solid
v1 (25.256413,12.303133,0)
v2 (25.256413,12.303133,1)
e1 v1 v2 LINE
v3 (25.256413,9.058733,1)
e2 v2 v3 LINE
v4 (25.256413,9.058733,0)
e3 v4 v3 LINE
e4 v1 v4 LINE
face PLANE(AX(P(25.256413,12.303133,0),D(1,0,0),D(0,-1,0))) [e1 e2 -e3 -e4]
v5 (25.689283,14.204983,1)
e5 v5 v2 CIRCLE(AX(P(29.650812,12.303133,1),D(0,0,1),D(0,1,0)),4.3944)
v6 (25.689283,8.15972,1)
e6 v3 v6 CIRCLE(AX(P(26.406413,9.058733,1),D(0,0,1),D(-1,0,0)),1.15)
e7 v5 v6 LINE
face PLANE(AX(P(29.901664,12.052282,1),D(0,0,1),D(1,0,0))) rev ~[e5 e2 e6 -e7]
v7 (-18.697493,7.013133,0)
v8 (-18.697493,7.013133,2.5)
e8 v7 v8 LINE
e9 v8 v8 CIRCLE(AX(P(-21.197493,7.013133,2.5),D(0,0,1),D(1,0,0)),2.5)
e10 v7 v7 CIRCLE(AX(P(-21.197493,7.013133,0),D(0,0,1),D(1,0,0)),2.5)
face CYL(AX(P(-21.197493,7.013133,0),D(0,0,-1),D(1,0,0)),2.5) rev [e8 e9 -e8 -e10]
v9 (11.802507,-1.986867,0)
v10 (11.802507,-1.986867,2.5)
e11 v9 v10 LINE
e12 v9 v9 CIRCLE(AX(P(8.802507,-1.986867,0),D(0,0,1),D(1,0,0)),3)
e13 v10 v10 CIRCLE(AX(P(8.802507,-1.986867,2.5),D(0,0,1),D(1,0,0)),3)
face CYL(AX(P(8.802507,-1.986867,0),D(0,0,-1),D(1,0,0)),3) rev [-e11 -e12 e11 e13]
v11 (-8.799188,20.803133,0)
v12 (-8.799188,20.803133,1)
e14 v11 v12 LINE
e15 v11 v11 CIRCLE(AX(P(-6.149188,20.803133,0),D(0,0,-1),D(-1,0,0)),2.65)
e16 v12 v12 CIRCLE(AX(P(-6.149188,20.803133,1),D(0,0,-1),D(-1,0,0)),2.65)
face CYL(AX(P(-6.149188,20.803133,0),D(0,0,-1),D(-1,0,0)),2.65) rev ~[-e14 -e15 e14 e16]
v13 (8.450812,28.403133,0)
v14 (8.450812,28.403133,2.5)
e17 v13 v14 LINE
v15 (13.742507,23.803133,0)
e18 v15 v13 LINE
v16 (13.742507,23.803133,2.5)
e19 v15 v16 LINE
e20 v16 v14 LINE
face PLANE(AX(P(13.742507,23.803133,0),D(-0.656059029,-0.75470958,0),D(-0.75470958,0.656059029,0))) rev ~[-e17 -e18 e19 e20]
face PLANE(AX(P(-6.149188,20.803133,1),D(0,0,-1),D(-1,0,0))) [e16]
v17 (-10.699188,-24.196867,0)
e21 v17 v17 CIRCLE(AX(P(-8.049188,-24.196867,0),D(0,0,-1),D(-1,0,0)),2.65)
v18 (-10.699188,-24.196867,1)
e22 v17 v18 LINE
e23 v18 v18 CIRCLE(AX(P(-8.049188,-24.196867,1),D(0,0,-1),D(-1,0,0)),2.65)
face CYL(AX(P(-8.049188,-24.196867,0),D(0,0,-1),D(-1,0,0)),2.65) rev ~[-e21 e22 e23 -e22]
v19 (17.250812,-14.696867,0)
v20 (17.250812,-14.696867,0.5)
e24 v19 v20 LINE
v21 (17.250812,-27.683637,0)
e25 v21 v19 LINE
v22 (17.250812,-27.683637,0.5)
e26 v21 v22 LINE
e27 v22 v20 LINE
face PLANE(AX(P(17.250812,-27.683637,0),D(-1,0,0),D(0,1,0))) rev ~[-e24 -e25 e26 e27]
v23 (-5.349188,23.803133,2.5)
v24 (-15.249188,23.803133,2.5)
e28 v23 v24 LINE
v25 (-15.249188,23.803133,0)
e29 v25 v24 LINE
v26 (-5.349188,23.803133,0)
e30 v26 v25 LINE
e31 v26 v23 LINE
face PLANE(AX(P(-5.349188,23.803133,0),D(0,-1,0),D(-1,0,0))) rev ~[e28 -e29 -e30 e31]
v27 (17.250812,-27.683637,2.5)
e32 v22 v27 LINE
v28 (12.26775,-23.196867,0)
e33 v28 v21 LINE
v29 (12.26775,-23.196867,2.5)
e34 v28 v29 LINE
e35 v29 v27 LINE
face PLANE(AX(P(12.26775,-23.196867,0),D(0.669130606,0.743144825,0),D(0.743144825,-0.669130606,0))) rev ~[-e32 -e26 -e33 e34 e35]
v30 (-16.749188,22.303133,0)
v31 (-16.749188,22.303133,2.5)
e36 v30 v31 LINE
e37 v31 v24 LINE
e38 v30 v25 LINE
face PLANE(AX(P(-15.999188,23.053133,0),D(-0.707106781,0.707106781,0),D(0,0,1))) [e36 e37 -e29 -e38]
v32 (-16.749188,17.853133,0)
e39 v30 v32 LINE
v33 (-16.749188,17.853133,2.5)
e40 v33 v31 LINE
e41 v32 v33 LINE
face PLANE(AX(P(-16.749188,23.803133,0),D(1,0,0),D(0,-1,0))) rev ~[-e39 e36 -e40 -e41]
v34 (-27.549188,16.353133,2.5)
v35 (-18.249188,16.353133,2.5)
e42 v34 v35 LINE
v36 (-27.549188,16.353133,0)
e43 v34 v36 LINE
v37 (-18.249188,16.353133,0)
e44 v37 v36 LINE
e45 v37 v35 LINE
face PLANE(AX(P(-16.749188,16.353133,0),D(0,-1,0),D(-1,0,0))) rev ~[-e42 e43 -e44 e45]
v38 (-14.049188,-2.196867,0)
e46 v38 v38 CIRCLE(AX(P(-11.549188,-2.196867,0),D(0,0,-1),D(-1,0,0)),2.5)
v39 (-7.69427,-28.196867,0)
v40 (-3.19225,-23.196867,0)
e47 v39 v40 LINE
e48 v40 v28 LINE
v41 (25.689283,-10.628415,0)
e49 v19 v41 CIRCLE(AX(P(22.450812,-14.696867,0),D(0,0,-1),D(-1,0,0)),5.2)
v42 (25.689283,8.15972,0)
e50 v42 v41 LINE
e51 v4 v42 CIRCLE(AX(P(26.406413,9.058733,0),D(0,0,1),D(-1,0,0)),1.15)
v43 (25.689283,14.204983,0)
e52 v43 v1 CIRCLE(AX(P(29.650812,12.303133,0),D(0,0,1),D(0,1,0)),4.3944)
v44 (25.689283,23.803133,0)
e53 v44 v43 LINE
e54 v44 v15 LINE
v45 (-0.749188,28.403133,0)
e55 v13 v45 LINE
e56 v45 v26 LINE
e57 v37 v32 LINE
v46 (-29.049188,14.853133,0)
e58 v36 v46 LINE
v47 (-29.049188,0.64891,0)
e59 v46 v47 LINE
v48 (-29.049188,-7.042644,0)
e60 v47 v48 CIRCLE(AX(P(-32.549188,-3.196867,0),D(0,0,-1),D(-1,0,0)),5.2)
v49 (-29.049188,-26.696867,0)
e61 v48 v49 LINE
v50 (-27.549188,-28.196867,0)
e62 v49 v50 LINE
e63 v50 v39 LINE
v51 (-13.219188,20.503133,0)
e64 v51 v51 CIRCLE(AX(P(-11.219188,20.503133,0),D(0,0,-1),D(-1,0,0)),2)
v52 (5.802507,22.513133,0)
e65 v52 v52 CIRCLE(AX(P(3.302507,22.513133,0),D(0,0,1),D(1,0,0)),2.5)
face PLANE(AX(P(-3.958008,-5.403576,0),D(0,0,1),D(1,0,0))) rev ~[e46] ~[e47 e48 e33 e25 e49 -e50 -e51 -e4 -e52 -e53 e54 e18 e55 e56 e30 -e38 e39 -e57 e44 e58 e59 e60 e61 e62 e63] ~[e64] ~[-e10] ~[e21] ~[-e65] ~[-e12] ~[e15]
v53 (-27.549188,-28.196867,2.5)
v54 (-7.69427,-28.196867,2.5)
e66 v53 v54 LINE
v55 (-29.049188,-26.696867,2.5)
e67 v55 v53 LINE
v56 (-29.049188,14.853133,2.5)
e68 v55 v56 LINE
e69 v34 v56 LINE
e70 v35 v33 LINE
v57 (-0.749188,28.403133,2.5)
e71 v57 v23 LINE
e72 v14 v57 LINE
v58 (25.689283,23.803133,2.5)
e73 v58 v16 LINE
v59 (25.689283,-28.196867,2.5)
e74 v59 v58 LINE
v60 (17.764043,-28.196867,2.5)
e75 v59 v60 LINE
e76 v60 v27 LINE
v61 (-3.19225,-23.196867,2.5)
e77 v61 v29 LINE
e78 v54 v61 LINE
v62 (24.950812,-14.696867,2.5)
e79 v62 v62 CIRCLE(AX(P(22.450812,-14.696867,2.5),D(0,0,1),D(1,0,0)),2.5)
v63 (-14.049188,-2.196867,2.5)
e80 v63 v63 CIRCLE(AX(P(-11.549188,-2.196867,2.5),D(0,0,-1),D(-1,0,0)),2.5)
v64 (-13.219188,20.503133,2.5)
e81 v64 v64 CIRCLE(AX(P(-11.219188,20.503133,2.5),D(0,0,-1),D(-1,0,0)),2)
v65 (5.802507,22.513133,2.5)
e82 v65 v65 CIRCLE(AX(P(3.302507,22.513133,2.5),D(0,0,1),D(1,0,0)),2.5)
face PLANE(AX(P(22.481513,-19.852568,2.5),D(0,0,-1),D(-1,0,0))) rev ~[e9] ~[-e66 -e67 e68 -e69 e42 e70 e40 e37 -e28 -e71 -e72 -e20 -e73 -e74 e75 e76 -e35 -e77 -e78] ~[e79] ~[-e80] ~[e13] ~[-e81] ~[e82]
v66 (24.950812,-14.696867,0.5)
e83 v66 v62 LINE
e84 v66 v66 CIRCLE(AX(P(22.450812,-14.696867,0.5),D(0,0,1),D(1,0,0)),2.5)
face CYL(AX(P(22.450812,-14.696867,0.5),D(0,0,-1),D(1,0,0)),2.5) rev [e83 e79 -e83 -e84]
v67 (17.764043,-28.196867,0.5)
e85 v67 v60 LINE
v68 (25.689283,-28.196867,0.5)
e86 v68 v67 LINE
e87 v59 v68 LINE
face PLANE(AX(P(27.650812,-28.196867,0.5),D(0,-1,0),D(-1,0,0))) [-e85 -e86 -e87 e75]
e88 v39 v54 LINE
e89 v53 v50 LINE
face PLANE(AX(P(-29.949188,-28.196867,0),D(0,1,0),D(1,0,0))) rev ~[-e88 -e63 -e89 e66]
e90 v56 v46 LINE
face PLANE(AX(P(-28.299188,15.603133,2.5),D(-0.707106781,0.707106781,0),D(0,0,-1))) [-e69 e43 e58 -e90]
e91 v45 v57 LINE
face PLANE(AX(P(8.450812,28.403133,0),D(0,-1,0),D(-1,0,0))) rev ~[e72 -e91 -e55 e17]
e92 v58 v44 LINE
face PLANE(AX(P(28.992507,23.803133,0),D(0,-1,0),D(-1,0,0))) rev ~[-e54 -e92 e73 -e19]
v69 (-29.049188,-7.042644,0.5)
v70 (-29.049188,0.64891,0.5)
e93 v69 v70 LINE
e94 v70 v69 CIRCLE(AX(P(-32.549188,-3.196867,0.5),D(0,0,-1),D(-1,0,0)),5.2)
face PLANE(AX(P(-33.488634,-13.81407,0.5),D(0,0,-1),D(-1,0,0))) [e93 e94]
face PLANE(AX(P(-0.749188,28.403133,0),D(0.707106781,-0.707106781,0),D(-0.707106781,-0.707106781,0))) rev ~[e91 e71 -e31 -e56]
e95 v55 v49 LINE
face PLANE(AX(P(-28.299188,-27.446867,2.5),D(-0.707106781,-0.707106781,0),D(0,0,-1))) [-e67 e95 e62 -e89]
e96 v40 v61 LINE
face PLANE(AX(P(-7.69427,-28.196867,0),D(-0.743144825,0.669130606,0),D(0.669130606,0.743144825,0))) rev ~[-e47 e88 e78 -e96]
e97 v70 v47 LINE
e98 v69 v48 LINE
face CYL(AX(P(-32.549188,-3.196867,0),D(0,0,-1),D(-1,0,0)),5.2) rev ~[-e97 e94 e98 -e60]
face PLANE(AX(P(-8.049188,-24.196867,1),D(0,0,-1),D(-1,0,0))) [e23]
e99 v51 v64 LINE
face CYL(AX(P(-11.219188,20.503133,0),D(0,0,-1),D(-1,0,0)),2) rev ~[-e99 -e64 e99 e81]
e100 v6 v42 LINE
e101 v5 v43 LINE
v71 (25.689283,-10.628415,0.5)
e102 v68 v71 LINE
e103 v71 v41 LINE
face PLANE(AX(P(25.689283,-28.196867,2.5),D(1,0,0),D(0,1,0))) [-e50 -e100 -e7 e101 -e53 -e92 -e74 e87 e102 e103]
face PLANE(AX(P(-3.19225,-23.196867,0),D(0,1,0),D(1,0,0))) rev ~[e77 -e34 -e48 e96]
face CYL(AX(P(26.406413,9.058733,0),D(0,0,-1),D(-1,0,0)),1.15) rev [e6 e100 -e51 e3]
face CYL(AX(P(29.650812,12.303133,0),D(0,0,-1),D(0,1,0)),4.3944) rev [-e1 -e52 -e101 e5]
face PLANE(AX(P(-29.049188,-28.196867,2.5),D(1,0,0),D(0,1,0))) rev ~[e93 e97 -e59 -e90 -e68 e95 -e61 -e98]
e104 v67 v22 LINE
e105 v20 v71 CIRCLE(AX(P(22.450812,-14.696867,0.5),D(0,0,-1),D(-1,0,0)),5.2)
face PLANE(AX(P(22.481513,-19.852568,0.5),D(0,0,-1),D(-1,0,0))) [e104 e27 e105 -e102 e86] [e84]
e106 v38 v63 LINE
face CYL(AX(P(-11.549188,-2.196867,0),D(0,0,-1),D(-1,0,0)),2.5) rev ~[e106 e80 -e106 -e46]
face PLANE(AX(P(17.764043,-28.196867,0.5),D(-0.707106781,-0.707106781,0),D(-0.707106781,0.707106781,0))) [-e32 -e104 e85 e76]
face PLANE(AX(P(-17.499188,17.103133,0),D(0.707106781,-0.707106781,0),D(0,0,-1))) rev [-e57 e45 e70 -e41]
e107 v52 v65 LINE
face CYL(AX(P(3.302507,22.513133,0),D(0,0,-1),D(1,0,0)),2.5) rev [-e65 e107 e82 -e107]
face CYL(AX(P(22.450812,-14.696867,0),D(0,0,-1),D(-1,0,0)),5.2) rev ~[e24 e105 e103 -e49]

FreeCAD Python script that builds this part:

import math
import FreeCAD as App
import Part
import Sketcher

V = App.Vector
Q = App.Units.Quantity


def edges_at(feature, points):
    """Names of the edges that pass closest to the given points."""
    edges = feature.Shape.Edges
    near = lambda p: min(range(len(edges)), key=lambda i: edges[i].distToShape(Part.Vertex(*p))[0])
    return sorted({f"Edge{near(p) + 1}" for p in points})

doc = App.newDocument("Part")
body = doc.addObject("PartDesign::Body", "Body")

# Sketch on XY plane
sketch1 = body.newObject("Sketcher::SketchObject", "Sketch")
sketch1.AttachmentSupport = (doc.getObject("XY_Plane"), [""])
sketch1.MapMode = "FlatFace"
sketch1.addGeometry(Part.LineSegment(V(-7.7, -28.2, 0), V(-3.2, -23.2, 0)), False)
sketch1.addGeometry(Part.LineSegment(V(-3.2, -23.2, 0), V(12.3, -23.2, 0)), False)
sketch1.addGeometry(Part.LineSegment(V(12.3, -23.2, 0), V(17.3, -27.7, 0)), False)
sketch1.addGeometry(Part.LineSegment(V(17.3, -27.7, 0), V(17.3, -14.7, 0)), False)
sketch1.addGeometry(Part.ArcOfCircle(Part.Circle(V(22.5, -14.7, 0), V(0, 0, 1), 5.2), math.radians(0), math.radians(180)), False)
sketch1.addGeometry(Part.LineSegment(V(27.7, -14.7, 0), V(27.7, -28.2, 0)), False)
sketch1.addGeometry(Part.LineSegment(V(27.7, -28.2, 0), V(40.7, -28.2, 0)), False)
sketch1.addGeometry(Part.LineSegment(V(40.7, -28.2, 0), V(40.7, 12.2, 0)), False)
sketch1.addGeometry(Part.LineSegment(V(40.7, 12.2, 0), V(29, 23.8, 0)), False)
sketch1.addGeometry(Part.LineSegment(V(29, 23.8, 0), V(13.7, 23.8, 0)), False)
sketch1.addGeometry(Part.LineSegment(V(13.7, 23.8, 0), V(8.5, 28.4, 0)), False)
sketch1.addGeometry(Part.LineSegment(V(8.5, 28.4, 0), V(-0.7, 28.4, 0)), False)
sketch1.addGeometry(Part.LineSegment(V(-0.7, 28.4, 0), V(-5.3, 23.8, 0)), False)
sketch1.addGeometry(Part.LineSegment(V(-5.3, 23.8, 0), V(-28.1, 23.8, 0)), False)
sketch1.addGeometry(Part.LineSegment(V(-28.1, 23.8, 0), V(-43, 8.9, 0)), False)
sketch1.addGeometry(Part.LineSegment(V(-43, 8.9, 0), V(-43, -28.2, 0)), False)
sketch1.addGeometry(Part.LineSegment(V(-43, -28.2, 0), V(-37.7, -28.2, 0)), False)
sketch1.addGeometry(Part.LineSegment(V(-37.7, -28.2, 0), V(-37.7, -3.2, 0)), False)
sketch1.addGeometry(Part.ArcOfCircle(Part.Circle(V(-32.5, -3.2, 0), V(0, 0, 1), 5.2), math.radians(-60), math.radians(180)), False)
sketch1.addGeometry(Part.LineSegment(V(-29.9, -7.7, 0), V(-29.9, -28.2, 0)), False)
sketch1.addGeometry(Part.LineSegment(V(-29.9, -28.2, 0), V(-7.7, -28.2, 0)), False)
sketch1.addGeometry(Part.Circle(V(-21.2, 7, 0), V(0, 0, 1), 2.5), False)
sketch1.addGeometry(Part.Circle(V(8.8, -2, 0), V(0, 0, 1), 3), False)
sketch1.addGeometry(Part.Circle(V(3.3, 22.5, 0), V(0, 0, 1), 2.5), False)
sketch1.addConstraint(Sketcher.Constraint("Coincident", 0, 2, 1, 1))
sketch1.addConstraint(Sketcher.Constraint("Coincident", 1, 2, 2, 1))
sketch1.addConstraint(Sketcher.Constraint("Coincident", 2, 2, 3, 1))
sketch1.addConstraint(Sketcher.Constraint("Tangent", 3, 2, 4, 2))
sketch1.addConstraint(Sketcher.Constraint("Tangent", 4, 1, 5, 1))
sketch1.addConstraint(Sketcher.Constraint("Coincident", 5, 2, 6, 1))
sketch1.addConstraint(Sketcher.Constraint("Coincident", 6, 2, 7, 1))
sketch1.addConstraint(Sketcher.Constraint("Coincident", 7, 2, 8, 1))
sketch1.addConstraint(Sketcher.Constraint("Coincident", 8, 2, 9, 1))
sketch1.addConstraint(Sketcher.Constraint("Coincident", 9, 2, 10, 1))
sketch1.addConstraint(Sketcher.Constraint("Coincident", 10, 2, 11, 1))
sketch1.addConstraint(Sketcher.Constraint("Coincident", 11, 2, 12, 1))
sketch1.addConstraint(Sketcher.Constraint("Coincident", 12, 2, 13, 1))
sketch1.addConstraint(Sketcher.Constraint("Coincident", 13, 2, 14, 1))
sketch1.addConstraint(Sketcher.Constraint("Coincident", 14, 2, 15, 1))
sketch1.addConstraint(Sketcher.Constraint("Coincident", 15, 2, 16, 1))
sketch1.addConstraint(Sketcher.Constraint("Coincident", 16, 2, 17, 1))
sketch1.addConstraint(Sketcher.Constraint("Tangent", 17, 2, 18, 2))
sketch1.addConstraint(Sketcher.Constraint("Coincident", 18, 1, 19, 1))
sketch1.addConstraint(Sketcher.Constraint("Coincident", 19, 2, 20, 1))
sketch1.addConstraint(Sketcher.Constraint("Coincident", 20, 2, 0, 1))
sketch1.addConstraint(Sketcher.Constraint("Horizontal", 1))
sketch1.addConstraint(Sketcher.Constraint("Vertical", 3))
sketch1.addConstraint(Sketcher.Constraint("Vertical", 5))
sketch1.addConstraint(Sketcher.Constraint("Horizontal", 6))
sketch1.addConstraint(Sketcher.Constraint("Vertical", 7))
sketch1.addConstraint(Sketcher.Constraint("Horizontal", 9))
sketch1.addConstraint(Sketcher.Constraint("Horizontal", 11))
sketch1.addConstraint(Sketcher.Constraint("Horizontal", 13))
sketch1.addConstraint(Sketcher.Constraint("Vertical", 15))
sketch1.addConstraint(Sketcher.Constraint("Horizontal", 16))
sketch1.addConstraint(Sketcher.Constraint("Vertical", 17))
sketch1.addConstraint(Sketcher.Constraint("Vertical", 19))
sketch1.addConstraint(Sketcher.Constraint("Horizontal", 20))
sketch1.addConstraint(Sketcher.Constraint("Equal", 4, 18))
sketch1.addConstraint(Sketcher.Constraint("Equal", 21, 23))
sketch1.addConstraint(Sketcher.Constraint("Perpendicular", 0, 2))
sketch1.addConstraint(Sketcher.Constraint("Parallel", 12, 14))
sketch1.addConstraint(Sketcher.Constraint("Horizontal", 9, 2, 12, 2))
sketch1.addConstraint(Sketcher.Constraint("Horizontal", 6, 2, 15, 2))
sketch1.addConstraint(Sketcher.Constraint("Horizontal", 16, 2, 19, 2))
sketch1.addConstraint(Sketcher.Constraint("Diameter", 21, 5.0))
sketch1.addConstraint(Sketcher.Constraint("Diameter", 22, 6.0))
sketch1.addConstraint(Sketcher.Constraint("Radius", 4, 5.2))
sketch1.addConstraint(Sketcher.Constraint("DistanceX", 6, 1, 6, 2, 13.0))
sketch1.addConstraint(Sketcher.Constraint("DistanceY", 17, 1, 17, 2, 25.0))
sketch1.addConstraint(Sketcher.Constraint("Angle", 0, Q("48 deg")))
sketch1.addConstraint(Sketcher.Constraint("Angle", 10, Q("139 deg")))
sketch1.addConstraint(Sketcher.Constraint("Angle", 12, Q("-135 deg")))
sketch1.addConstraint(Sketcher.Constraint("DistanceX", 11, 2, 11, 1, 9.2))
sketch1.addConstraint(Sketcher.Constraint("DistanceX", 13, 2, 13, 1, 22.8))
sketch1.addConstraint(Sketcher.Constraint("DistanceX", 16, 1, 16, 2, 5.3))
sketch1.addConstraint(Sketcher.Constraint("DistanceY", 5, 2, 5, 1, 13.5))
sketch1.addConstraint(Sketcher.Constraint("DistanceY", 15, 2, 15, 1, 37.1))
sketch1.addConstraint(Sketcher.Constraint("DistanceX", 18, 3, 4, 3, 55.0))
sketch1.addConstraint(Sketcher.Constraint("DistanceX", 21, 3, 22, 3, 30.0))
sketch1.addConstraint(Sketcher.Constraint("DistanceY", 22, 3, 21, 3, 9.0))
sketch1.addConstraint(Sketcher.Constraint("DistanceY", 0, 2, 18, 3, 20.0))
sketch1.addConstraint(Sketcher.Constraint("DistanceY", 18, 3, 13, 2, 27.0))
sketch1.addConstraint(Sketcher.Constraint("DistanceX", 1, 1, 1, 2, 15.46))
sketch1.addConstraint(Sketcher.Constraint("DistanceX", 9, 2, 9, 1, 15.25))
sketch1.addConstraint(Sketcher.Constraint("DistanceY", 7, 1, 7, 2, 40.38))
sketch1.addConstraint(Sketcher.Constraint("DistanceX", 23, 3, 22, 3, 5.5))
sketch1.addConstraint(Sketcher.Constraint("DistanceY", 22, 3, 23, 3, 24.5))
sketch1.addConstraint(Sketcher.Constraint("DistanceY", 9, 2, 10, 2, 4.6))
sketch1.addConstraint(Sketcher.Constraint("DistanceX", 18, 3, 18, 1, 2.6))
sketch1.addConstraint(Sketcher.Constraint("DistanceY", 18, 3, 21, 3, 10.21))
sketch1.addConstraint(Sketcher.Constraint("DistanceX", 23, 3, 8, 2, 25.69))
sketch1.addConstraint(Sketcher.Constraint("DistanceY", 3, 1, 3, 2, 12.98677))
sketch1.addConstraint(Sketcher.Constraint("DistanceY", 18, 1, -1, 1, 7.700199))
sketch1.addConstraint(Sketcher.Constraint("DistanceX", 0, 2, -1, 1, 3.19225))
pad1 = body.newObject("PartDesign::Pad", "Pad")
pad1.Profile = sketch1
pad1.Length = 2.5

# Sketch on XY plane
sketch2 = body.newObject("Sketcher::SketchObject", "Sketch001")
sketch2.AttachmentSupport = (doc.getObject("XY_Plane"), [""])
sketch2.MapMode = "FlatFace"
sketch2.AttachmentOffset = App.Placement(V(0, 0, 0.5), App.Rotation())
sketch2.addGeometry(Part.LineSegment(V(27.7, -28.2, 0), V(27.7, -14.7, 0)), False)
sketch2.addGeometry(Part.ArcOfCircle(Part.Circle(V(22.5, -14.7, 0), V(0, 0, 1), 5.2), math.radians(0), math.radians(180)), False)
sketch2.addGeometry(Part.LineSegment(V(17.3, -14.7, 0), V(17.3, -27.7, 0)), False)
sketch2.addGeometry(Part.LineSegment(V(17.3, -27.7, 0), V(17.8, -28.2, 0)), False)
sketch2.addGeometry(Part.LineSegment(V(17.8, -28.2, 0), V(27.7, -28.2, 0)), False)
sketch2.addGeometry(Part.Circle(V(22.5, -14.7, 0), V(0, 0, 1), 2.5), False)
sketch2.addGeometry(Part.LineSegment(V(-29.9, -28.2, 0), V(-29.9, -7.7, 0)), False)
sketch2.addGeometry(Part.ArcOfCircle(Part.Circle(V(-32.5, -3.2, 0), V(0, 0, 1), 5.2), math.radians(-60), math.radians(180)), False)
sketch2.addGeometry(Part.LineSegment(V(-37.7, -3.2, 0), V(-37.7, -28.2, 0)), False)
sketch2.addGeometry(Part.LineSegment(V(-37.7, -28.2, 0), V(-29.9, -28.2, 0)), False)
sketch2.addGeometry(Part.Circle(V(-32.5, -3.2, 0), V(0, 0, 1), 2.5), False)
sketch2.addConstraint(Sketcher.Constraint("Tangent", 0, 2, 1, 1))
sketch2.addConstraint(Sketcher.Constraint("Tangent", 1, 2, 2, 1))
sketch2.addConstraint(Sketcher.Constraint("Coincident", 2, 2, 3, 1))
sketch2.addConstraint(Sketcher.Constraint("Coincident", 3, 2, 4, 1))
sketch2.addConstraint(Sketcher.Constraint("Coincident", 4, 2, 0, 1))
sketch2.addConstraint(Sketcher.Constraint("Coincident", 6, 2, 7, 1))
sketch2.addConstraint(Sketcher.Constraint("Tangent", 7, 2, 8, 1))
sketch2.addConstraint(Sketcher.Constraint("Coincident", 8, 2, 9, 1))
sketch2.addConstraint(Sketcher.Constraint("Coincident", 9, 2, 6, 1))
sketch2.addConstraint(Sketcher.Constraint("Vertical", 0))
sketch2.addConstraint(Sketcher.Constraint("Vertical", 2))
sketch2.addConstraint(Sketcher.Constraint("Horizontal", 4))
sketch2.addConstraint(Sketcher.Constraint("Vertical", 6))
sketch2.addConstraint(Sketcher.Constraint("Vertical", 8))
sketch2.addConstraint(Sketcher.Constraint("Horizontal", 9))
sketch2.addConstraint(Sketcher.Constraint("Coincident", 5, 3, 1, 3))
sketch2.addConstraint(Sketcher.Constraint("Coincident", 10, 3, 7, 3))
sketch2.addConstraint(Sketcher.Constraint("Equal", 1, 7))
sketch2.addConstraint(Sketcher.Constraint("Equal", 5, 10))
sketch2.addConstraint(Sketcher.Constraint("Horizontal", 4, 2, 8, 2))
sketch2.addConstraint(Sketcher.Constraint("Diameter", 5, 5.0))
sketch2.addConstraint(Sketcher.Constraint("Radius", 1, 5.2))
sketch2.addConstraint(Sketcher.Constraint("DistanceY", 8, 2, 8, 1, 25.0))
sketch2.addConstraint(Sketcher.Constraint("Angle", 3, Q("-45 deg")))
sketch2.addConstraint(Sketcher.Constraint("DistanceX", 9, 1, 9, 2, 7.8))
sketch2.addConstraint(Sketcher.Constraint("DistanceY", 0, 1, 0, 2, 13.5))
sketch2.addConstraint(Sketcher.Constraint("DistanceX", 7, 3, 1, 3, 55.0))
sketch2.addConstraint(Sketcher.Constraint("DistanceX", 4, 1, 4, 2, 9.88677))
sketch2.addConstraint(Sketcher.Constraint("DistanceY", 6, 2, -1, 1, 7.700199))
sketch2.addConstraint(Sketcher.Constraint("DistanceX", -1, 1, 1, 3, 22.450812))
pad2 = body.newObject("PartDesign::Pad", "Pad001")
pad2.Profile = sketch2
pad2.Length = 2

# Sketch on XY plane
sketch3 = body.newObject("Sketcher::SketchObject", "Sketch002")
sketch3.AttachmentSupport = (doc.getObject("XY_Plane"), [""])
sketch3.MapMode = "FlatFace"
sketch3.addGeometry(Part.Circle(V(-6.1, 20.8, 0), V(0, 0, 1), 2.6), False)
sketch3.addGeometry(Part.Circle(V(-8, -24.2, 0), V(0, 0, 1), 2.6), False)
sketch3.addGeometry(Part.LineSegment(V(32.9, 7.9, 0), V(26.4, 7.9, 0)), False)
sketch3.addGeometry(Part.ArcOfCircle(Part.Circle(V(26.4, 9.1, 0), V(0, 0, 1), 1.1), math.radians(180), math.radians(270)), False)
sketch3.addGeometry(Part.LineSegment(V(25.3, 9.1, 0), V(25.3, 12.3, 0)), False)
sketch3.addGeometry(Part.ArcOfCircle(Part.Circle(V(29.7, 12.3, 0), V(0, 0, 1), 4.4), math.radians(90), math.radians(180)), False)
sketch3.addGeometry(Part.LineSegment(V(29.7, 16.7, 0), V(32.9, 16.7, 0)), False)
sketch3.addGeometry(Part.ArcOfCircle(Part.Circle(V(32.9, 15.5, 0), V(0, 0, 1), 1.2), math.radians(0), math.radians(90)), False)
sketch3.addGeometry(Part.LineSegment(V(34, 15.5, 0), V(34, 9.1, 0)), False)
sketch3.addGeometry(Part.ArcOfCircle(Part.Circle(V(32.9, 9.1, 0), V(0, 0, 1), 1.2), math.radians(-90), math.radians(0)), False)
sketch3.addConstraint(Sketcher.Constraint("Tangent", 2, 2, 3, 2))
sketch3.addConstraint(Sketcher.Constraint("Tangent", 3, 1, 4, 1))
sketch3.addConstraint(Sketcher.Constraint("Tangent", 4, 2, 5, 2))
sketch3.addConstraint(Sketcher.Constraint("Tangent", 5, 1, 6, 1))
sketch3.addConstraint(Sketcher.Constraint("Tangent", 6, 2, 7, 2))
sketch3.addConstraint(Sketcher.Constraint("Tangent", 7, 1, 8, 1))
sketch3.addConstraint(Sketcher.Constraint("Tangent", 8, 2, 9, 2))
sketch3.addConstraint(Sketcher.Constraint("Tangent", 9, 1, 2, 1))
sketch3.addConstraint(Sketcher.Constraint("Horizontal", 2))
sketch3.addConstraint(Sketcher.Constraint("Vertical", 4))
sketch3.addConstraint(Sketcher.Constraint("Horizontal", 6))
sketch3.addConstraint(Sketcher.Constraint("Vertical", 8))
sketch3.addConstraint(Sketcher.Constraint("Equal", 0, 1))
sketch3.addConstraint(Sketcher.Constraint("Equal", 3, 7))
sketch3.addConstraint(Sketcher.Constraint("Equal", 7, 9))
sketch3.addConstraint(Sketcher.Constraint("Equal", 6, 4))
sketch3.addConstraint(Sketcher.Constraint("Diameter", 0, 5.3))
sketch3.addConstraint(Sketcher.Constraint("Radius", 3, 1.15))
sketch3.addConstraint(Sketcher.Constraint("DistanceY", 1, 3, 0, 3, 45.0))
sketch3.addConstraint(Sketcher.Constraint("Radius", 5, 4.3944))
sketch3.addConstraint(Sketcher.Constraint("DistanceX", 1, 3, 0, 3, 1.9))
sketch3.addConstraint(Sketcher.Constraint("DistanceX", 0, 3, 5, 3, 35.8))
sketch3.addConstraint(Sketcher.Constraint("DistanceY", 5, 3, 0, 3, 8.5))
sketch3.addConstraint(Sketcher.Constraint("DistanceX", 2, 2, 2, 1, 6.488799))
sketch3.addConstraint(Sketcher.Constraint("DistanceX", 0, 3, -1, 1, 6.149188))
sketch3.addConstraint(Sketcher.Constraint("DistanceY", -1, 1, 0, 3, 20.803133))
pocket1 = body.newObject("PartDesign::Pocket", "Pocket")
pocket1.Profile = sketch3
pocket1.Length = 1
pocket1.Reversed = True
doc.recompute()

chamfer = body.newObject("PartDesign::Chamfer", "Chamfer")
chamfer.Base = (pocket1, edges_at(pocket1, [(-43.049, -28.197, 1.25), (40.651, -28.197, 1.25)]))
chamfer.Size = 1

# Sketch on XY plane
sketch4 = body.newObject("Sketcher::SketchObject", "Sketch003")
sketch4.AttachmentSupport = (doc.getObject("XY_Plane"), [""])
sketch4.MapMode = "FlatFace"
sketch4.AttachmentOffset = App.Placement(V(0, 0, 1), App.Rotation())
sketch4.addGeometry(Part.Circle(V(29.7, 12.3, 0), V(0, 0, 1), 2.5), False)
sketch4.addConstraint(Sketcher.Constraint("Diameter", 0, 5.0))
sketch4.addConstraint(Sketcher.Constraint("DistanceX", -1, 1, 0, 3, 29.650812))
sketch4.addConstraint(Sketcher.Constraint("DistanceY", -1, 1, 0, 3, 12.303133))
pocket2 = body.newObject("PartDesign::Pocket", "Pocket001")
pocket2.Profile = sketch4
pocket2.Type = "UpToFirst"
pocket2.Reversed = True

# Sketch on XY plane
sketch5 = body.newObject("Sketcher::SketchObject", "Sketch004")
sketch5.AttachmentSupport = (doc.getObject("XY_Plane"), [""])
sketch5.MapMode = "FlatFace"
sketch5.addGeometry(Part.LineSegment(V(-17, 24, 0), V(-17, 16, 0)), False)
sketch5.addGeometry(Part.LineSegment(V(-17, 16, 0), V(-36, 16, 0)), False)
sketch5.addGeometry(Part.LineSegment(V(-36, 16, 0), V(-28, 24, 0)), False)
sketch5.addGeometry(Part.LineSegment(V(-28, 24, 0), V(-17, 24, 0)), False)
sketch5.addConstraint(Sketcher.Constraint("Coincident", 0, 2, 1, 1))
sketch5.addConstraint(Sketcher.Constraint("Coincident", 1, 2, 2, 1))
sketch5.addConstraint(Sketcher.Constraint("Coincident", 2, 2, 3, 1))
sketch5.addConstraint(Sketcher.Constraint("Coincident", 3, 2, 0, 1))
sketch5.addConstraint(Sketcher.Constraint("Vertical", 0))
sketch5.addConstraint(Sketcher.Constraint("Horizontal", 1))
sketch5.addConstraint(Sketcher.Constraint("Horizontal", 3))
sketch5.addConstraint(Sketcher.Constraint("Angle", 2, Q("45 deg")))
sketch5.addConstraint(Sketcher.Constraint("DistanceX", 3, 1, 3, 2, 11.4))
sketch5.addConstraint(Sketcher.Constraint("DistanceX", 1, 2, 1, 1, 18.85))
sketch5.addConstraint(Sketcher.Constraint("DistanceX", 0, 2, -1, 1, 16.749188))
sketch5.addConstraint(Sketcher.Constraint("DistanceY", -1, 1, 0, 2, 16.353133))
pocket3 = body.newObject("PartDesign::Pocket", "Pocket002")
pocket3.Profile = sketch5
pocket3.Type = "UpToFirst"
pocket3.Reversed = True
doc.recompute()

chamfer2 = body.newObject("PartDesign::Chamfer", "Chamfer001")
chamfer2.Base = (pocket3, edges_at(pocket3, [(-16.749, 23.803, 1.25), (-16.749, 16.353, 1.25)]))
chamfer2.Size = 1.5

# Sketch on XY plane
sketch6 = body.newObject("Sketcher::SketchObject", "Sketch005")
sketch6.AttachmentSupport = (doc.getObject("XY_Plane"), [""])
sketch6.MapMode = "FlatFace"
sketch6.addGeometry(Part.LineSegment(V(34.7, -28.2, 0), V(34.7, 18.1, 0)), False)
sketch6.addGeometry(Part.LineSegment(V(34.7, 18.1, 0), V(40.7, 12.2, 0)), False)
sketch6.addGeometry(Part.LineSegment(V(40.7, 12.2, 0), V(40.7, -27.2, 0)), False)
sketch6.addGeometry(Part.LineSegment(V(40.7, -27.2, 0), V(39.7, -28.2, 0)), False)
sketch6.addGeometry(Part.LineSegment(V(39.7, -28.2, 0), V(34.7, -28.2, 0)), False)
sketch6.addConstraint(Sketcher.Constraint("Coincident", 0, 2, 1, 1))
sketch6.addConstraint(Sketcher.Constraint("Coincident", 1, 2, 2, 1))
sketch6.addConstraint(Sketcher.Constraint("Coincident", 2, 2, 3, 1))
sketch6.addConstraint(Sketcher.Constraint("Coincident", 3, 2, 4, 1))
sketch6.addConstraint(Sketcher.Constraint("Coincident", 4, 2, 0, 1))
sketch6.addConstraint(Sketcher.Constraint("Vertical", 0))
sketch6.addConstraint(Sketcher.Constraint("Vertical", 2))
sketch6.addConstraint(Sketcher.Constraint("Horizontal", 4))
sketch6.addConstraint(Sketcher.Constraint("Angle", 3, Q("-135 deg")))
sketch6.addConstraint(Sketcher.Constraint("DistanceX", 3, 2, 2, 2, 1.0))
sketch6.addConstraint(Sketcher.Constraint("DistanceY", 2, 2, 2, 1, 39.38))
sketch6.addConstraint(Sketcher.Constraint("DistanceX", 4, 2, 4, 1, 4.961529))
sketch6.addConstraint(Sketcher.Constraint("DistanceY", 0, 1, 0, 2, 46.321942))
sketch6.addConstraint(Sketcher.Constraint("DistanceX", -1, 1, 0, 2, 34.689283))
sketch6.addConstraint(Sketcher.Constraint("DistanceY", -1, 1, 0, 2, 18.125074))
pocket4 = body.newObject("PartDesign::Pocket", "Pocket003")
pocket4.Profile = sketch6
pocket4.Type = "UpToFirst"
pocket4.Reversed = True

# Sketch on XY plane
sketch7 = body.newObject("Sketcher::SketchObject", "Sketch006")
sketch7.AttachmentSupport = (doc.getObject("XY_Plane"), [""])
sketch7.MapMode = "FlatFace"
sketch7.addGeometry(Part.LineSegment(V(-43, 8.9, 0), V(-38, 13.9, 0)), False)
sketch7.addGeometry(Part.LineSegment(V(-38, 13.9, 0), V(-38, -28.2, 0)), False)
sketch7.addGeometry(Part.LineSegment(V(-38, -28.2, 0), V(-42, -28.2, 0)), False)
sketch7.addGeometry(Part.LineSegment(V(-42, -28.2, 0), V(-43, -27.2, 0)), False)
sketch7.addGeometry(Part.LineSegment(V(-43, -27.2, 0), V(-43, 8.9, 0)), False)
sketch7.addConstraint(Sketcher.Constraint("Coincident", 0, 2, 1, 1))
sketch7.addConstraint(Sketcher.Constraint("Coincident", 1, 2, 2, 1))
sketch7.addConstraint(Sketcher.Constraint("Coincident", 2, 2, 3, 1))
sketch7.addConstraint(Sketcher.Constraint("Coincident", 3, 2, 4, 1))
sketch7.addConstraint(Sketcher.Constraint("Coincident", 4, 2, 0, 1))
sketch7.addConstraint(Sketcher.Constraint("Vertical", 1))
sketch7.addConstraint(Sketcher.Constraint("Horizontal", 2))
sketch7.addConstraint(Sketcher.Constraint("Vertical", 4))
sketch7.addConstraint(Sketcher.Constraint("Perpendicular", 0, 3))
sketch7.addConstraint(Sketcher.Constraint("DistanceX", 2, 2, 2, 1, 4.0))
sketch7.addConstraint(Sketcher.Constraint("Angle", 0, Q("45 deg")))
sketch7.addConstraint(Sketcher.Constraint("DistanceY", 1, 2, 1, 1, 42.1))
sketch7.addConstraint(Sketcher.Constraint("DistanceY", 4, 1, 4, 2, 36.1))
sketch7.addConstraint(Sketcher.Constraint("DistanceX", 0, 2, -1, 1, 38.049188))
sketch7.addConstraint(Sketcher.Constraint("DistanceY", -1, 1, 0, 2, 13.903133))
pocket5 = body.newObject("PartDesign::Pocket", "Pocket004")
pocket5.Profile = sketch7
pocket5.Type = "UpToFirst"
pocket5.Reversed = True
doc.recompute()

chamfer3 = body.newObject("PartDesign::Chamfer", "Chamfer002")
chamfer3.Base = (pocket5, edges_at(pocket5, [(-38.049, -28.197, 1.25), (34.689, -28.197, 1.25)]))
chamfer3.Size = 2

# Sketch on XY plane
sketch8 = body.newObject("Sketcher::SketchObject", "Sketch007")
sketch8.AttachmentSupport = (doc.getObject("XY_Plane"), [""])
sketch8.MapMode = "FlatFace"
sketch8.AttachmentOffset = App.Placement(V(0, 0, 2.5), App.Rotation())
sketch8.addGeometry(Part.LineSegment(V(-38, 16, 0), V(-38, -28, 0)), False)
sketch8.addGeometry(Part.LineSegment(V(-38, -28, 0), V(-29, -28, 0)), False)
sketch8.addGeometry(Part.LineSegment(V(-29, -28, 0), V(-29, 16, 0)), False)
sketch8.addGeometry(Part.LineSegment(V(-29, 16, 0), V(-38, 16, 0)), False)
sketch8.addConstraint(Sketcher.Constraint("Coincident", 0, 2, 1, 1))
sketch8.addConstraint(Sketcher.Constraint("Coincident", 1, 2, 2, 1))
sketch8.addConstraint(Sketcher.Constraint("Coincident", 2, 2, 3, 1))
sketch8.addConstraint(Sketcher.Constraint("Coincident", 3, 2, 0, 1))
sketch8.addConstraint(Sketcher.Constraint("Vertical", 0))
sketch8.addConstraint(Sketcher.Constraint("Horizontal", 1))
sketch8.addConstraint(Sketcher.Constraint("Vertical", 2))
sketch8.addConstraint(Sketcher.Constraint("Horizontal", 3))
sketch8.addConstraint(Sketcher.Constraint("DistanceX", 1, 1, 1, 2, 9.0))
sketch8.addConstraint(Sketcher.Constraint("DistanceY", 0, 2, 0, 1, 44.55))
sketch8.addConstraint(Sketcher.Constraint("DistanceX", 0, 2, -1, 1, 38.049188))
sketch8.addConstraint(Sketcher.Constraint("DistanceY", 0, 2, -1, 1, 28.196867))
pocket6 = body.newObject("PartDesign::Pocket", "Pocket005")
pocket6.Profile = sketch8
pocket6.Length = 2.5

# Sketch on XY plane
sketch9 = body.newObject("Sketcher::SketchObject", "Sketch008")
sketch9.AttachmentSupport = (doc.getObject("XY_Plane"), [""])
sketch9.MapMode = "FlatFace"
sketch9.AttachmentOffset = App.Placement(V(0, 0, 2.5), App.Rotation())
sketch9.addGeometry(Part.LineSegment(V(26, 24, 0), V(26, -28, 0)), False)
sketch9.addGeometry(Part.LineSegment(V(26, -28, 0), V(35, -28, 0)), False)
sketch9.addGeometry(Part.LineSegment(V(35, -28, 0), V(35, 24, 0)), False)
sketch9.addGeometry(Part.LineSegment(V(35, 24, 0), V(26, 24, 0)), False)
sketch9.addConstraint(Sketcher.Constraint("Coincident", 0, 2, 1, 1))
sketch9.addConstraint(Sketcher.Constraint("Coincident", 1, 2, 2, 1))
sketch9.addConstraint(Sketcher.Constraint("Coincident", 2, 2, 3, 1))
sketch9.addConstraint(Sketcher.Constraint("Coincident", 3, 2, 0, 1))
sketch9.addConstraint(Sketcher.Constraint("Vertical", 0))
sketch9.addConstraint(Sketcher.Constraint("Horizontal", 1))
sketch9.addConstraint(Sketcher.Constraint("Vertical", 2))
sketch9.addConstraint(Sketcher.Constraint("Horizontal", 3))
sketch9.addConstraint(Sketcher.Constraint("DistanceX", 1, 1, 1, 2, 9.0))
sketch9.addConstraint(Sketcher.Constraint("DistanceY", 0, 2, 0, 1, 52.0))
sketch9.addConstraint(Sketcher.Constraint("DistanceX", -1, 1, 0, 2, 25.689283))
sketch9.addConstraint(Sketcher.Constraint("DistanceY", 0, 2, -1, 1, 28.196867))
pocket7 = body.newObject("PartDesign::Pocket", "Pocket006")
pocket7.Profile = sketch9
pocket7.Type = "UpToFirst"

# Sketch on XY plane
sketch10 = body.newObject("Sketcher::SketchObject", "Sketch009")
sketch10.AttachmentSupport = (doc.getObject("XY_Plane"), [""])
sketch10.MapMode = "FlatFace"
sketch10.addGeometry(Part.Circle(V(-11.5, -2.2, 0), V(0, 0, 1), 2.5), False)
sketch10.addConstraint(Sketcher.Constraint("Diameter", 0, 5.0))
sketch10.addConstraint(Sketcher.Constraint("DistanceX", 0, 3, -1, 1, 11.549188))
sketch10.addConstraint(Sketcher.Constraint("DistanceY", 0, 3, -1, 1, 2.196867))
pocket8 = body.newObject("PartDesign::Pocket", "Pocket007")
pocket8.Profile = sketch10
pocket8.Type = "UpToFirst"
pocket8.Reversed = True
doc.recompute()

chamfer4 = body.newObject("PartDesign::Chamfer", "Chamfer003")
chamfer4.Base = (pocket8, edges_at(pocket8, [(-29.049, 16.353, 1.25), (-29.049, -28.197, 1.25)]))
chamfer4.Size = 1.5

# Sketch on XY plane
sketch11 = body.newObject("Sketcher::SketchObject", "Sketch010")
sketch11.AttachmentSupport = (doc.getObject("XY_Plane"), [""])
sketch11.MapMode = "FlatFace"
sketch11.addGeometry(Part.Circle(V(-11.2, 20.5, 0), V(0, 0, 1), 2), False)
sketch11.addConstraint(Sketcher.Constraint("Diameter", 0, 4.0))
sketch11.addConstraint(Sketcher.Constraint("DistanceX", 0, 3, -1, 1, 11.219188))
sketch11.addConstraint(Sketcher.Constraint("DistanceY", -1, 1, 0, 3, 20.503133))
pocket9 = body.newObject("PartDesign::Pocket", "Pocket008")
pocket9.Profile = sketch11
pocket9.Length = 10
pocket9.Reversed = True

doc.recompute()
